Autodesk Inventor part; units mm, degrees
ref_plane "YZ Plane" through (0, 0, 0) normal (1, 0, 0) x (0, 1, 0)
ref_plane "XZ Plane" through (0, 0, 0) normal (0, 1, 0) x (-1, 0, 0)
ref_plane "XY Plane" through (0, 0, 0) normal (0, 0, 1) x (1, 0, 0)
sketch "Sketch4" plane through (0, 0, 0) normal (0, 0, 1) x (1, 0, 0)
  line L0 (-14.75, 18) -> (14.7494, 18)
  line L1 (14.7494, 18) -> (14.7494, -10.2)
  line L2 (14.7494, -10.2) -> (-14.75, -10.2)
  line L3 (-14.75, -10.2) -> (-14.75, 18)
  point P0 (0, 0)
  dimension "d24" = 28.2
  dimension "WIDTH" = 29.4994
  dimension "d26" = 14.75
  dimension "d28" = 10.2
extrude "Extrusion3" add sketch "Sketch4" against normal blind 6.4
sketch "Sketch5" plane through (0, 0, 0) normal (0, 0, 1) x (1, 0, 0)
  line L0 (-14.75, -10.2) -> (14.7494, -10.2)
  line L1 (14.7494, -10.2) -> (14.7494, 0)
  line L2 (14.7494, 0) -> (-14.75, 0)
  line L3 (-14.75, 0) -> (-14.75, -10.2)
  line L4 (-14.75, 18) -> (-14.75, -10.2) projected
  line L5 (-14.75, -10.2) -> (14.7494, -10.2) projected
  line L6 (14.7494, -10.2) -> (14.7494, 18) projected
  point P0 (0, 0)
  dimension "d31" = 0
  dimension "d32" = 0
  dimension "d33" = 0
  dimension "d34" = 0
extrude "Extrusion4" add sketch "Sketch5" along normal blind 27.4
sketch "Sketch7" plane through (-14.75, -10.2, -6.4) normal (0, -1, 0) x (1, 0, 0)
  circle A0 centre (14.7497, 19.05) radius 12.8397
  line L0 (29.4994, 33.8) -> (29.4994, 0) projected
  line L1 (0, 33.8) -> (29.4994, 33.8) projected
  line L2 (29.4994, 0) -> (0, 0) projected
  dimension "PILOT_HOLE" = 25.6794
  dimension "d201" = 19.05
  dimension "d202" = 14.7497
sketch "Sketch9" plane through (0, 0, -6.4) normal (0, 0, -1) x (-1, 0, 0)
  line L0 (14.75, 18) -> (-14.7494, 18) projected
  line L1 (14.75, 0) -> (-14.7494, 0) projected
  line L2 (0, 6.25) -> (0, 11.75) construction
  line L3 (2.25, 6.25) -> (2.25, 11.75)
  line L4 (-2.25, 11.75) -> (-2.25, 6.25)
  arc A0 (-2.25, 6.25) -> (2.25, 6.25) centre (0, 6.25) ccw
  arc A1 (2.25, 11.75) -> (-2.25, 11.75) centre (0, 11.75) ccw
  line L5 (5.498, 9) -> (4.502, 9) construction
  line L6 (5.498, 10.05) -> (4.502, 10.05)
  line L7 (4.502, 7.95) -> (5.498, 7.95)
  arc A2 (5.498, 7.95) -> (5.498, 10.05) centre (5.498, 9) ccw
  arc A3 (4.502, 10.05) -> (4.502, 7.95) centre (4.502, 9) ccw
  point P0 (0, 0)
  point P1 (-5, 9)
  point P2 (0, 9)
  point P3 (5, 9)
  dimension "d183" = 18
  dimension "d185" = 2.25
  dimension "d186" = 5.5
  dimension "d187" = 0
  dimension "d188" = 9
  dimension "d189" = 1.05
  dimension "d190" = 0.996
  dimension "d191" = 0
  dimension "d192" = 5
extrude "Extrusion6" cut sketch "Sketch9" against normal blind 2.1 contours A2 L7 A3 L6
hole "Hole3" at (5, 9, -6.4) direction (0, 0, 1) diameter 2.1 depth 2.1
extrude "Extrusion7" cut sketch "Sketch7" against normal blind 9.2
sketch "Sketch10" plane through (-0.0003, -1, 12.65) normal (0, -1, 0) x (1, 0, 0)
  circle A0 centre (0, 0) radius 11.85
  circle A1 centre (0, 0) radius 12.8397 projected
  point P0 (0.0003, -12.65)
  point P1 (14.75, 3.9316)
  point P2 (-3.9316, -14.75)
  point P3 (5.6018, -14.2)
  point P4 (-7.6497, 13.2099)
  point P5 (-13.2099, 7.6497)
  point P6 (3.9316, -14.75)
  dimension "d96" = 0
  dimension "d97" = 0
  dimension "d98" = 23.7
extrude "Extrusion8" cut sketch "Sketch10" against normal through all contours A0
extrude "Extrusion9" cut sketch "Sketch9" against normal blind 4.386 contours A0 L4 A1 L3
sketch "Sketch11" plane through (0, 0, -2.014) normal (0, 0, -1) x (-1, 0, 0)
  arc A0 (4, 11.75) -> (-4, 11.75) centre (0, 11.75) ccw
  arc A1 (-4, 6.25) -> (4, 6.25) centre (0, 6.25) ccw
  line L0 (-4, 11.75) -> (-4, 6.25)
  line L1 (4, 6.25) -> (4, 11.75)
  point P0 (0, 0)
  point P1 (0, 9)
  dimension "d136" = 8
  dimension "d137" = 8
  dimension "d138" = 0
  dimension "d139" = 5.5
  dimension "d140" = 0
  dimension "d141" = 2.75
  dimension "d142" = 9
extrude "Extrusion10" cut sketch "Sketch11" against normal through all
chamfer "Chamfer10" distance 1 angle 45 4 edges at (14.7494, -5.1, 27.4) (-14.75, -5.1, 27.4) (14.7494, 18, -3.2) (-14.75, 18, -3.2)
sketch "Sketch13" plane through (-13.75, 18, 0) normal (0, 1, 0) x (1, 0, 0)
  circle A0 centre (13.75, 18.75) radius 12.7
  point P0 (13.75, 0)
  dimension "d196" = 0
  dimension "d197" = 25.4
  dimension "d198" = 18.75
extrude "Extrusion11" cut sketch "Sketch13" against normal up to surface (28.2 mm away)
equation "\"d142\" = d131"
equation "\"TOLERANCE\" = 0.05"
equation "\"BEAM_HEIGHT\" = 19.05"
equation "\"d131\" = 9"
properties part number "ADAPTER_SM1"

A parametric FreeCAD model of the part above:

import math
import FreeCAD as App
import Part
import Sketcher
from FreeCAD import Vector


def edges_at(feature, points):
    """Names of the edges that pass closest to the given points."""
    edges = feature.Shape.Edges
    near = lambda p: min(range(len(edges)), key=lambda i: edges[i].distToShape(Part.Vertex(*p))[0])
    return sorted({f"Edge{near(p) + 1}" for p in points})

doc = App.newDocument("Part")
body = doc.addObject("PartDesign::Body", "Body")

# Sketch on XY plane
sketch1 = body.newObject("Sketcher::SketchObject", "Sketch")
sketch1.AttachmentSupport = (doc.getObject("XY_Plane"), [""])
sketch1.MapMode = "FlatFace"
sketch1.addGeometry(Part.LineSegment(Vector(15, 18, 0), Vector(-15, 18, 0)), False)
sketch1.addGeometry(Part.LineSegment(Vector(-15, 18, 0), Vector(-15, -10, 0)), False)
sketch1.addGeometry(Part.LineSegment(Vector(-15, -10, 0), Vector(15, -10, 0)), False)
sketch1.addGeometry(Part.LineSegment(Vector(15, -10, 0), Vector(15, 18, 0)), False)
sketch1.addConstraint(Sketcher.Constraint("Coincident", 0, 2, 1, 1))
sketch1.addConstraint(Sketcher.Constraint("Coincident", 1, 2, 2, 1))
sketch1.addConstraint(Sketcher.Constraint("Coincident", 2, 2, 3, 1))
sketch1.addConstraint(Sketcher.Constraint("Coincident", 3, 2, 0, 1))
sketch1.addConstraint(Sketcher.Constraint("Horizontal", 0))
sketch1.addConstraint(Sketcher.Constraint("Vertical", 1))
sketch1.addConstraint(Sketcher.Constraint("Horizontal", 2))
sketch1.addConstraint(Sketcher.Constraint("Vertical", 3))
sketch1.addConstraint(Sketcher.Constraint("DistanceY", 1, 2, 1, 1, 28.2))
sketch1.addConstraint(Sketcher.Constraint("DistanceY", 1, 2, -1, 1, 10.2))
sketch1.addConstraint(Sketcher.Constraint("DistanceX", 0, 2, -1, 1, 14.75))
sketch1.addConstraint(Sketcher.Constraint("DistanceX", 0, 2, 0, 1, 29.4994))
pad1 = body.newObject("PartDesign::Pad", "Pad")
pad1.Profile = sketch1
pad1.Length = 6.4
pad1.Reversed = True

# Sketch on XY plane
sketch2 = body.newObject("Sketcher::SketchObject", "Sketch001")
sketch2.AttachmentSupport = (doc.getObject("XY_Plane"), [""])
sketch2.MapMode = "FlatFace"
sketch2.addGeometry(Part.LineSegment(Vector(-15, 0, 0), Vector(-15, -10, 0)), False)
sketch2.addGeometry(Part.LineSegment(Vector(-15, -10, 0), Vector(15, -10, 0)), False)
sketch2.addGeometry(Part.LineSegment(Vector(15, -10, 0), Vector(15, 0, 0)), False)
sketch2.addGeometry(Part.LineSegment(Vector(15, 0, 0), Vector(-15, 0, 0)), False)
sketch2.addConstraint(Sketcher.Constraint("Coincident", 0, 2, 1, 1))
sketch2.addConstraint(Sketcher.Constraint("Coincident", 1, 2, 2, 1))
sketch2.addConstraint(Sketcher.Constraint("Coincident", 2, 2, 3, 1))
sketch2.addConstraint(Sketcher.Constraint("Coincident", 3, 2, 0, 1))
sketch2.addConstraint(Sketcher.Constraint("Vertical", 0))
sketch2.addConstraint(Sketcher.Constraint("Horizontal", 1))
sketch2.addConstraint(Sketcher.Constraint("Vertical", 2))
sketch2.addConstraint(Sketcher.Constraint("Horizontal", 3))
sketch2.addConstraint(Sketcher.Constraint("PointOnObject", 2, 2, -1))
sketch2.addConstraint(Sketcher.Constraint("DistanceY", 0, 2, 0, 1, 10.2))
sketch2.addConstraint(Sketcher.Constraint("DistanceX", 0, 2, -1, 1, 14.75))
sketch2.addConstraint(Sketcher.Constraint("DistanceX", 1, 1, 1, 2, 29.4994))
pad2 = body.newObject("PartDesign::Pad", "Pad001")
pad2.Profile = sketch2
pad2.Length = 27.4

# Sketch on XY plane
sketch3 = body.newObject("Sketcher::SketchObject", "Sketch002")
sketch3.AttachmentSupport = (doc.getObject("XY_Plane"), [""])
sketch3.MapMode = "FlatFace"
sketch3.AttachmentOffset = App.Placement(Vector(0, 0, -6.4), App.Rotation())
sketch3.addGeometry(Part.ArcOfCircle(Part.Circle(Vector(-5.5, 9, 0), Vector(0, 0, 1), 1), math.radians(90), math.radians(270)), False)
sketch3.addGeometry(Part.LineSegment(Vector(-5.5, 10.1, 0), Vector(-4.5, 10.1, 0)), False)
sketch3.addGeometry(Part.ArcOfCircle(Part.Circle(Vector(-4.5, 9, 0), Vector(0, 0, 1), 1.1), math.radians(-90), math.radians(90)), False)
sketch3.addGeometry(Part.LineSegment(Vector(-4.5, 8, 0), Vector(-5.5, 8, 0)), False)
sketch3.addConstraint(Sketcher.Constraint("Tangent", 0, 1, 1, 1))
sketch3.addConstraint(Sketcher.Constraint("Tangent", 1, 2, 2, 2))
sketch3.addConstraint(Sketcher.Constraint("Tangent", 2, 1, 3, 1))
sketch3.addConstraint(Sketcher.Constraint("Tangent", 3, 2, 0, 2))
sketch3.addConstraint(Sketcher.Constraint("Horizontal", 1))
sketch3.addConstraint(Sketcher.Constraint("Horizontal", 3))
sketch3.addConstraint(Sketcher.Constraint("Radius", 0, 1.05))
sketch3.addConstraint(Sketcher.Constraint("DistanceY", -1, 1, 0, 3, 9.0))
sketch3.addConstraint(Sketcher.Constraint("DistanceX", 1, 1, 1, 2, 0.996))
sketch3.addConstraint(Sketcher.Constraint("DistanceX", 0, 3, -1, 1, 5.498))
pocket1 = body.newObject("PartDesign::Pocket", "Pocket")
pocket1.Profile = sketch3
pocket1.Length = 2.1
pocket1.Reversed = True

# Sketch on XY plane
sketch4 = body.newObject("Sketcher::SketchObject", "Sketch003")
sketch4.AttachmentSupport = (doc.getObject("XY_Plane"), [""])
sketch4.MapMode = "FlatFace"
sketch4.AttachmentOffset = App.Placement(Vector(0, 0, -6.4), App.Rotation())
sketch4.addGeometry(Part.Circle(Vector(5, 9, 0), Vector(0, 0, 1), 1.1), False)
sketch4.addConstraint(Sketcher.Constraint("Diameter", 0, 2.1))
sketch4.addConstraint(Sketcher.Constraint("DistanceX", -1, 1, 0, 3, 5.0))
sketch4.addConstraint(Sketcher.Constraint("DistanceY", -1, 1, 0, 3, 9.0))
doc.recompute()
hole = body.newObject("PartDesign::Hole", "Hole")
hole.Profile = sketch4
hole.ThreadType = "None"
hole.Diameter = 2.1
hole.DepthType = "Dimension"
hole.Depth = 2.1
hole.DrillPoint = "Flat"
hole.Reversed = True

# Sketch on XZ plane
sketch5 = body.newObject("Sketcher::SketchObject", "Sketch004")
sketch5.AttachmentSupport = (doc.getObject("XZ_Plane"), [""])
sketch5.MapMode = "FlatFace"
sketch5.AttachmentOffset = App.Placement(Vector(0, 0, 10.2), App.Rotation())
sketch5.addGeometry(Part.Circle(Vector(0, 13, 0), Vector(0, 0, 1), 13), False)
sketch5.addConstraint(Sketcher.Constraint("Diameter", 0, 25.6794))
sketch5.addConstraint(Sketcher.Constraint("DistanceY", -1, 1, 0, 3, 12.65))
sketch5.addConstraint(Sketcher.Constraint("DistanceX", 0, 3, -1, 1, 0.0003))
pocket2 = body.newObject("PartDesign::Pocket", "Pocket001")
pocket2.Profile = sketch5
pocket2.Length = 9.2

# Sketch on XZ plane
sketch6 = body.newObject("Sketcher::SketchObject", "Sketch005")
sketch6.AttachmentSupport = (doc.getObject("XZ_Plane"), [""])
sketch6.MapMode = "FlatFace"
sketch6.AttachmentOffset = App.Placement(Vector(0, 0, 1), App.Rotation())
sketch6.addGeometry(Part.Circle(Vector(0, 13, 0), Vector(0, 0, 1), 12), False)
sketch6.addConstraint(Sketcher.Constraint("Diameter", 0, 23.7))
sketch6.addConstraint(Sketcher.Constraint("DistanceX", 0, 3, -1, 1, 0.0003))
sketch6.addConstraint(Sketcher.Constraint("DistanceY", -1, 1, 0, 3, 12.65))
pocket3 = body.newObject("PartDesign::Pocket", "Pocket002")
pocket3.Profile = sketch6
pocket3.Type = "ThroughAll"

# Sketch on XY plane
sketch7 = body.newObject("Sketcher::SketchObject", "Sketch006")
sketch7.AttachmentSupport = (doc.getObject("XY_Plane"), [""])
sketch7.MapMode = "FlatFace"
sketch7.AttachmentOffset = App.Placement(Vector(0, 0, -6.4), App.Rotation())
sketch7.addGeometry(Part.ArcOfCircle(Part.Circle(Vector(0, 6.2, 0), Vector(0, 0, 1), 2.2), math.radians(180), math.radians(360)), False)
sketch7.addGeometry(Part.LineSegment(Vector(-2.2, 6.2, 0), Vector(-2.2, 11.8, 0)), False)
sketch7.addGeometry(Part.ArcOfCircle(Part.Circle(Vector(0, 11.8, 0), Vector(0, 0, 1), 2.2), math.radians(0), math.radians(180)), False)
sketch7.addGeometry(Part.LineSegment(Vector(2.2, 11.8, 0), Vector(2.2, 6.2, 0)), False)
sketch7.addConstraint(Sketcher.Constraint("Tangent", 0, 1, 1, 1))
sketch7.addConstraint(Sketcher.Constraint("Tangent", 1, 2, 2, 2))
sketch7.addConstraint(Sketcher.Constraint("Tangent", 2, 1, 3, 1))
sketch7.addConstraint(Sketcher.Constraint("Tangent", 3, 2, 0, 2))
sketch7.addConstraint(Sketcher.Constraint("Vertical", 1))
sketch7.addConstraint(Sketcher.Constraint("Vertical", 3))
sketch7.addConstraint(Sketcher.Constraint("PointOnObject", 0, 3, -2))
sketch7.addConstraint(Sketcher.Constraint("Radius", 0, 2.25))
sketch7.addConstraint(Sketcher.Constraint("DistanceY", 1, 1, 1, 2, 5.5))
sketch7.addConstraint(Sketcher.Constraint("DistanceY", -1, 1, 0, 3, 6.25))
pocket4 = body.newObject("PartDesign::Pocket", "Pocket003")
pocket4.Profile = sketch7
pocket4.Length = 4.386
pocket4.Reversed = True

# Sketch on XY plane
sketch8 = body.newObject("Sketcher::SketchObject", "Sketch007")
sketch8.AttachmentSupport = (doc.getObject("XY_Plane"), [""])
sketch8.MapMode = "FlatFace"
sketch8.AttachmentOffset = App.Placement(Vector(0, 0, -2.014), App.Rotation())
sketch8.addGeometry(Part.LineSegment(Vector(-4, 6.2, 0), Vector(-4, 11.8, 0)), False)
sketch8.addGeometry(Part.ArcOfCircle(Part.Circle(Vector(0, 11.8, 0), Vector(0, 0, 1), 4), math.radians(0), math.radians(180)), False)
sketch8.addGeometry(Part.LineSegment(Vector(4, 11.8, 0), Vector(4, 6.2, 0)), False)
sketch8.addGeometry(Part.ArcOfCircle(Part.Circle(Vector(0, 6.2, 0), Vector(0, 0, 1), 4), math.radians(180), math.radians(360)), False)
sketch8.addConstraint(Sketcher.Constraint("Tangent", 0, 2, 1, 2))
sketch8.addConstraint(Sketcher.Constraint("Tangent", 1, 1, 2, 1))
sketch8.addConstraint(Sketcher.Constraint("Tangent", 2, 2, 3, 2))
sketch8.addConstraint(Sketcher.Constraint("Tangent", 3, 1, 0, 1))
sketch8.addConstraint(Sketcher.Constraint("Vertical", 0))
sketch8.addConstraint(Sketcher.Constraint("Vertical", 2))
sketch8.addConstraint(Sketcher.Constraint("PointOnObject", 1, 3, -2))
sketch8.addConstraint(Sketcher.Constraint("Radius", 1, 4.0))
sketch8.addConstraint(Sketcher.Constraint("DistanceY", 0, 1, 0, 2, 5.5))
sketch8.addConstraint(Sketcher.Constraint("DistanceY", -1, 1, 1, 3, 11.75))
pocket5 = body.newObject("PartDesign::Pocket", "Pocket004")
pocket5.Profile = sketch8
pocket5.Type = "ThroughAll"
pocket5.Reversed = True
doc.recompute()

chamfer = body.newObject("PartDesign::Chamfer", "Chamfer")
chamfer.Base = (pocket5, edges_at(pocket5, [
    (14.749, -5.1, 27.4),
    (-14.75, -5.1, 27.4),
    (14.749, 18, -3.2),
    (-14.75, 18, -3.2),
]))
chamfer.Size = 1

# Sketch on XZ plane
sketch9 = body.newObject("Sketcher::SketchObject", "Sketch008")
sketch9.AttachmentSupport = (doc.getObject("XZ_Plane"), [""])
sketch9.MapMode = "FlatFace"
sketch9.AttachmentOffset = App.Placement(Vector(0, 0, -18), App.Rotation())
sketch9.addGeometry(Part.Circle(Vector(0, -19, 0), Vector(0, 0, 1), 13), False)
sketch9.addConstraint(Sketcher.Constraint("PointOnObject", 0, 3, -2))
sketch9.addConstraint(Sketcher.Constraint("Diameter", 0, 25.4))
sketch9.addConstraint(Sketcher.Constraint("DistanceY", 0, 3, -1, 1, 18.75))
pocket6 = body.newObject("PartDesign::Pocket", "Pocket005")
pocket6.Profile = sketch9
pocket6.Length = 28.2
pocket6.Reversed = True

doc.recompute()
